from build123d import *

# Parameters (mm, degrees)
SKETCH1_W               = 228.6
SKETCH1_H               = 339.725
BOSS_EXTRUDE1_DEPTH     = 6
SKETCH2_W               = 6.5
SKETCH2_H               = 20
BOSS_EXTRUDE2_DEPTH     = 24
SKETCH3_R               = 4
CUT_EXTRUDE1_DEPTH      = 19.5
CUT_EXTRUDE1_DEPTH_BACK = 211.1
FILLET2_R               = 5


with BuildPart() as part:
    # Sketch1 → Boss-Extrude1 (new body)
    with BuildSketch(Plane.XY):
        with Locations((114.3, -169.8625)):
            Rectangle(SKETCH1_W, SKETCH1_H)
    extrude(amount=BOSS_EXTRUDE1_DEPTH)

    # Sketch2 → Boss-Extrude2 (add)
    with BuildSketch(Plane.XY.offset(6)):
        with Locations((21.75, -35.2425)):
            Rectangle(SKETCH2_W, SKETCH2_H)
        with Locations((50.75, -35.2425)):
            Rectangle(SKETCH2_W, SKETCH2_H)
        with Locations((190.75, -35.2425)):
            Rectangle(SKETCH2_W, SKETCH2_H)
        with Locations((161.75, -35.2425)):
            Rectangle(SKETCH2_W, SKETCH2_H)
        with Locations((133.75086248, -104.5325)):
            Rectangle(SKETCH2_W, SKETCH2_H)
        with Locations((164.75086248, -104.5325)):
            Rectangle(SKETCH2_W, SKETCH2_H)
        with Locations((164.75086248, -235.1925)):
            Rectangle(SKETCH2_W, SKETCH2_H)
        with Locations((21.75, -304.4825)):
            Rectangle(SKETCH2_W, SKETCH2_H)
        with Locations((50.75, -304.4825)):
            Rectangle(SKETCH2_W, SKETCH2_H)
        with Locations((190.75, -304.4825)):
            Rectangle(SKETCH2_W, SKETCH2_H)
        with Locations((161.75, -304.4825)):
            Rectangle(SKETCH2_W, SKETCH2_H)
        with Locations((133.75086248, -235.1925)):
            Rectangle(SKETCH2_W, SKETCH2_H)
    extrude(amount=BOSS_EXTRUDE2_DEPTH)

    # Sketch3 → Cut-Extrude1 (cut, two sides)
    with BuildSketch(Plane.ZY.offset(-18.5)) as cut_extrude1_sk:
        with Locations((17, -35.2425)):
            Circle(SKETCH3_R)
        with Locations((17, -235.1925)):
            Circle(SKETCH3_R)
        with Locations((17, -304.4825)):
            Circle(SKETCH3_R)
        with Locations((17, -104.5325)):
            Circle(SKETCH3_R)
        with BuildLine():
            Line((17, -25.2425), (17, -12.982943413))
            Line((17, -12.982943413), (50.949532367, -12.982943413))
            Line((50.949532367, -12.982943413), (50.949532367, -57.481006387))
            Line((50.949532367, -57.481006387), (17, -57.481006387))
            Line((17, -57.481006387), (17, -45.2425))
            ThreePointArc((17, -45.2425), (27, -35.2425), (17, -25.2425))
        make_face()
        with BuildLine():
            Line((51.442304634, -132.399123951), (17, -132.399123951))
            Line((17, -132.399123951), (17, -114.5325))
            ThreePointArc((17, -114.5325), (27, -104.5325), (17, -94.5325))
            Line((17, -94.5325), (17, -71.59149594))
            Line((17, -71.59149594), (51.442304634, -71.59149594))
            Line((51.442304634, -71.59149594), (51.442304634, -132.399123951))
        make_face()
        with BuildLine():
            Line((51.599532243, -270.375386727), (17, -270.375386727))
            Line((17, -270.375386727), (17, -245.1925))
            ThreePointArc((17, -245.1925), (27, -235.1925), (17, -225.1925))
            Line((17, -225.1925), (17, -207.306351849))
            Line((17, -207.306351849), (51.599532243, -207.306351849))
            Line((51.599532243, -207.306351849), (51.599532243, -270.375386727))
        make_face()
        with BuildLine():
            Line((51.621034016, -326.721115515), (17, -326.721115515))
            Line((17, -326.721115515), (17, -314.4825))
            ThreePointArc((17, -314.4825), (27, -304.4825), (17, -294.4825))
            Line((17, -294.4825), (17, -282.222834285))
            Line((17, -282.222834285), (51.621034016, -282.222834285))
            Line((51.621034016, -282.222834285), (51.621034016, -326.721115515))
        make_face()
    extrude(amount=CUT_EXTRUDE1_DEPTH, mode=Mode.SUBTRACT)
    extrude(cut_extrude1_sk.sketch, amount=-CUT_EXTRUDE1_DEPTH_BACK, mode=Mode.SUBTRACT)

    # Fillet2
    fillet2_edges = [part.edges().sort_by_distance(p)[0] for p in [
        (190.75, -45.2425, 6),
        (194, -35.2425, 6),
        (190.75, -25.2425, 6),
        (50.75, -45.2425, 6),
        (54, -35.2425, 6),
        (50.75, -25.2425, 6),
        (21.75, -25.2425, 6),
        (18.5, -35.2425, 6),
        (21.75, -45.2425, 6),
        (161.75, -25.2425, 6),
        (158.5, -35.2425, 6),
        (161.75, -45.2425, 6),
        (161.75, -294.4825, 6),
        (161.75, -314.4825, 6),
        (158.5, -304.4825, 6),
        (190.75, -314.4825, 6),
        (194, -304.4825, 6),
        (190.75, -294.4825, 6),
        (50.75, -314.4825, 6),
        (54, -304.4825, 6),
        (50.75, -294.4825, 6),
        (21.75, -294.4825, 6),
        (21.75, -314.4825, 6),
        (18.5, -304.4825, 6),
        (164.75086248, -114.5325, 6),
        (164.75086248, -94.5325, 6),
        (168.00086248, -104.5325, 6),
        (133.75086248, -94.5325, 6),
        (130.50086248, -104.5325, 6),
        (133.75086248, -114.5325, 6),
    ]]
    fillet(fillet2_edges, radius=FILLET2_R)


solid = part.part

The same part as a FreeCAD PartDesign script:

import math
import FreeCAD as App
import Part
import Sketcher

V = App.Vector
Q = App.Units.Quantity


def edges_at(feature, points):
    """Names of the edges that pass closest to the given points."""
    edges = feature.Shape.Edges
    near = lambda p: min(range(len(edges)), key=lambda i: edges[i].distToShape(Part.Vertex(*p))[0])
    return sorted({f"Edge{near(p) + 1}" for p in points})


def add_polygon(sketch, points):
    """Adds a closed chain of lines whose ends are joined by coincident constraints."""
    first, n = sketch.GeometryCount, len(points)
    for a, b in zip(points, points[1:] + points[:1]):
        sketch.addGeometry(Part.LineSegment(App.Vector(*a, 0), App.Vector(*b, 0)), False)
    for i in range(n):
        sketch.addConstraint(Sketcher.Constraint("Coincident", first + i, 2, first + (i + 1) % n, 1))

doc = App.newDocument("Part")
body = doc.addObject("PartDesign::Body", "Body")

# Sketch on XY plane
sketch1 = doc.addObject("Sketcher::SketchObject", "Sketch")
body.addObject(sketch1)
sketch1.AttachmentSupport = (doc.XY_Plane, [""])
sketch1.MapMode = "FlatFace"
add_polygon(sketch1, [(0, 0), (0, -340), (229, -340), (229, 0)])  # lines 0-3
sketch1.addConstraint([
    Sketcher.Constraint("Vertical", 0),
    Sketcher.Constraint("Horizontal", 1),
    Sketcher.Constraint("Vertical", 2),
    Sketcher.Constraint("Horizontal", 3),
    Sketcher.Constraint("Coincident", 3, 2, -1, 1),
    Sketcher.Constraint("DistanceX", 1, 1, 1, 2, Q("228.6 mm")),
    Sketcher.Constraint("DistanceY", 0, 2, 0, 1, Q("339.725 mm")),
])
pad1 = doc.addObject("PartDesign::Pad", "Pad")
body.addObject(pad1)
pad1.Profile = sketch1
pad1.Length = 6

# Sketch on XY plane
sketch2 = doc.addObject("Sketcher::SketchObject", "Sketch001")
body.addObject(sketch2)
sketch2.AttachmentSupport = (doc.XY_Plane, [""])
sketch2.MapMode = "FlatFace"
sketch2.AttachmentOffset = App.Placement(V(0, 0, 6), App.Rotation())
add_polygon(sketch2, [(18, -25), (18, -45), (25, -45), (25, -25)])  # lines 0-3
add_polygon(sketch2, [(48, -25), (48, -45), (54, -45), (54, -25)])  # lines 4-7
add_polygon(sketch2, [(188, -25), (188, -45), (194, -45), (194, -25)])  # lines 8-11
add_polygon(sketch2, [(158, -25), (158, -45), (165, -45), (165, -25)])  # lines 12-15
add_polygon(sketch2, [(131, -95), (131, -115), (137, -115), (137, -95)])  # lines 16-19
add_polygon(sketch2, [(162, -95), (162, -115), (168, -115), (168, -95)])  # lines 20-23
add_polygon(sketch2, [(162, -225), (162, -245), (168, -245), (168, -225)])  # lines 24-27
add_polygon(sketch2, [(18, -294), (18, -314), (25, -314), (25, -294)])  # lines 28-31
add_polygon(sketch2, [(48, -294), (48, -314), (54, -314), (54, -294)])  # lines 32-35
add_polygon(sketch2, [(188, -294), (188, -314), (194, -314), (194, -294)])  # lines 36-39
add_polygon(sketch2, [(158, -294), (158, -314), (165, -314), (165, -294)])  # lines 40-43
add_polygon(sketch2, [(131, -225), (131, -245), (137, -245), (137, -225)])  # lines 44-47
sketch2.addConstraint([
    Sketcher.Constraint("Vertical", 0),
    Sketcher.Constraint("Horizontal", 1),
    Sketcher.Constraint("Vertical", 2),
    Sketcher.Constraint("Horizontal", 3),
    Sketcher.Constraint("Vertical", 4),
    Sketcher.Constraint("Horizontal", 5),
    Sketcher.Constraint("Vertical", 6),
    Sketcher.Constraint("Horizontal", 7),
    Sketcher.Constraint("Vertical", 8),
    Sketcher.Constraint("Horizontal", 9),
    Sketcher.Constraint("Vertical", 10),
    Sketcher.Constraint("Horizontal", 11),
    Sketcher.Constraint("Vertical", 12),
    Sketcher.Constraint("Horizontal", 13),
    Sketcher.Constraint("Vertical", 14),
    Sketcher.Constraint("Horizontal", 15),
    Sketcher.Constraint("Vertical", 16),
    Sketcher.Constraint("Horizontal", 17),
    Sketcher.Constraint("Vertical", 18),
    Sketcher.Constraint("Horizontal", 19),
    Sketcher.Constraint("Vertical", 20),
    Sketcher.Constraint("Horizontal", 21),
    Sketcher.Constraint("Vertical", 22),
    Sketcher.Constraint("Horizontal", 23),
    Sketcher.Constraint("Vertical", 24),
    Sketcher.Constraint("Horizontal", 25),
    Sketcher.Constraint("Vertical", 26),
    Sketcher.Constraint("Horizontal", 27),
    Sketcher.Constraint("Vertical", 28),
    Sketcher.Constraint("Horizontal", 29),
    Sketcher.Constraint("Vertical", 30),
    Sketcher.Constraint("Horizontal", 31),
    Sketcher.Constraint("Vertical", 32),
    Sketcher.Constraint("Horizontal", 33),
    Sketcher.Constraint("Vertical", 34),
    Sketcher.Constraint("Horizontal", 35),
    Sketcher.Constraint("Vertical", 36),
    Sketcher.Constraint("Horizontal", 37),
    Sketcher.Constraint("Vertical", 38),
    Sketcher.Constraint("Horizontal", 39),
    Sketcher.Constraint("Vertical", 40),
    Sketcher.Constraint("Horizontal", 41),
    Sketcher.Constraint("Vertical", 42),
    Sketcher.Constraint("Horizontal", 43),
    Sketcher.Constraint("Vertical", 44),
    Sketcher.Constraint("Horizontal", 45),
    Sketcher.Constraint("Vertical", 46),
    Sketcher.Constraint("Horizontal", 47),
    Sketcher.Constraint("Horizontal", 1, 2, 4, 2),
    Sketcher.Constraint("Horizontal", 3, 2, 6, 2),
    Sketcher.Constraint("Horizontal", 5, 2, 8, 2),
    Sketcher.Constraint("Horizontal", 7, 2, 10, 2),
    Sketcher.Constraint("Horizontal", 9, 2, 12, 2),
    Sketcher.Constraint("Horizontal", 11, 2, 14, 2),
    Sketcher.Constraint("Horizontal", 17, 2, 20, 2),
    Sketcher.Constraint("Horizontal", 19, 2, 22, 2),
    Sketcher.Constraint("Horizontal", 29, 2, 32, 2),
    Sketcher.Constraint("Horizontal", 31, 2, 34, 2),
    Sketcher.Constraint("Horizontal", 33, 2, 36, 2),
    Sketcher.Constraint("Horizontal", 35, 2, 38, 2),
    Sketcher.Constraint("Horizontal", 37, 2, 40, 2),
    Sketcher.Constraint("Horizontal", 39, 2, 42, 2),
    Sketcher.Constraint("Horizontal", 25, 2, 44, 2),
    Sketcher.Constraint("Horizontal", 27, 2, 46, 2),
    Sketcher.Constraint("Vertical", 23, 2, 24, 2),
    Sketcher.Constraint("Vertical", 22, 2, 25, 2),
    Sketcher.Constraint("Vertical", 3, 2, 28, 2),
    Sketcher.Constraint("Vertical", 2, 2, 29, 2),
    Sketcher.Constraint("Vertical", 7, 2, 32, 2),
    Sketcher.Constraint("Vertical", 6, 2, 33, 2),
    Sketcher.Constraint("Vertical", 11, 2, 36, 2),
    Sketcher.Constraint("Vertical", 10, 2, 37, 2),
    Sketcher.Constraint("Vertical", 15, 2, 40, 2),
    Sketcher.Constraint("Vertical", 14, 2, 41, 2),
    Sketcher.Constraint("Vertical", 19, 2, 44, 2),
    Sketcher.Constraint("Vertical", 18, 2, 45, 2),
    Sketcher.Constraint("Equal", 3, 5),
    Sketcher.Constraint("Equal", 7, 9),
    Sketcher.Constraint("Equal", 11, 13),
    Sketcher.Constraint("Equal", 15, 17),
    Sketcher.Constraint("Equal", 19, 21),
    Sketcher.Constraint("Equal", 14, 16),
    Sketcher.Constraint("Equal", 22, 24),
    Sketcher.Constraint("Equal", 26, 28),
    Sketcher.Constraint("DistanceY", 0, 2, 0, 1, Q("20 mm")),
    Sketcher.Constraint("DistanceX", 1, 1, 1, 2, Q("6.5 mm")),
    Sketcher.Constraint("DistanceX", -1, 1, 1, 2, Q("25 mm")),
    Sketcher.Constraint("DistanceX", -1, 1, 5, 2, Q("54 mm")),
    Sketcher.Constraint("DistanceX", -1, 1, 9, 2, Q("194 mm")),
    Sketcher.Constraint("DistanceX", -1, 1, 13, 2, Q("165 mm")),
    Sketcher.Constraint("DistanceX", 16, 2, 20, 2, Q("31 mm")),
    Sketcher.Constraint("DistanceY", 16, 2, 12, 2, Q("69.29 mm")),
    Sketcher.Constraint("DistanceY", 24, 2, 20, 2, Q("130.66 mm")),
    Sketcher.Constraint("DistanceY", 28, 2, 24, 2, Q("69.29 mm")),
    Sketcher.Constraint("DistanceY", 0, 2, -1, 1, Q("45.2425 mm")),
    Sketcher.Constraint("DistanceX", -1, 1, 16, 2, Q("130.500862 mm")),
])
pad2 = doc.addObject("PartDesign::Pad", "Pad001")
body.addObject(pad2)
pad2.Profile = sketch2
pad2.Length = 24

# Sketch on YZ plane
sketch3 = doc.addObject("Sketcher::SketchObject", "Sketch002")
body.addObject(sketch3)
sketch3.AttachmentSupport = (doc.YZ_Plane, [""])
sketch3.MapMode = "FlatFace"
sketch3.AttachmentOffset = App.Placement(V(0, 0, 18.5), App.Rotation())
sketch3.addGeometry([
    Part.Circle(V(-35.2, 17, 0), V(0, 0, 1), 4),  # 0
    Part.Circle(V(-235.2, 17, 0), V(0, 0, 1), 4),  # 1
    Part.Circle(V(-304.5, 17, 0), V(0, 0, 1), 4),  # 2
    Part.Circle(V(-104.5, 17, 0), V(0, 0, 1), 4),  # 3
    Part.LineSegment(V(-13, 17, 0), V(-25.2, 17, 0)),  # 4
    Part.ArcOfCircle(Part.Circle(V(-35.2, 17, 0), V(0, 0, 1), 10), math.radians(0), math.radians(180)),  # 5
    Part.LineSegment(V(-45.2, 17, 0), V(-57.5, 17, 0)),  # 6
    Part.LineSegment(V(-57.5, 17, 0), V(-57.5, 50.9, 0)),  # 7
    Part.LineSegment(V(-57.5, 50.9, 0), V(-13, 50.9, 0)),  # 8
    Part.LineSegment(V(-13, 50.9, 0), V(-13, 17, 0)),  # 9
    Part.LineSegment(V(-132.4, 17, 0), V(-132.4, 51.4, 0)),  # 10
    Part.LineSegment(V(-132.4, 51.4, 0), V(-71.6, 51.4, 0)),  # 11
    Part.LineSegment(V(-71.6, 51.4, 0), V(-71.6, 17, 0)),  # 12
    Part.LineSegment(V(-71.6, 17, 0), V(-94.5, 17, 0)),  # 13
    Part.ArcOfCircle(Part.Circle(V(-104.5, 17, 0), V(0, 0, 1), 10), math.radians(0), math.radians(180)),  # 14
    Part.LineSegment(V(-114.5, 17, 0), V(-132.4, 17, 0)),  # 15
    Part.LineSegment(V(-270.4, 17, 0), V(-270.4, 51.6, 0)),  # 16
    Part.LineSegment(V(-270.4, 51.6, 0), V(-207.3, 51.6, 0)),  # 17
    Part.LineSegment(V(-207.3, 51.6, 0), V(-207.3, 17, 0)),  # 18
    Part.LineSegment(V(-207.3, 17, 0), V(-225.2, 17, 0)),  # 19
    Part.ArcOfCircle(Part.Circle(V(-235.2, 17, 0), V(0, 0, 1), 10), math.radians(0), math.radians(180)),  # 20
    Part.LineSegment(V(-245.2, 17, 0), V(-270.4, 17, 0)),  # 21
    Part.LineSegment(V(-326.7, 17, 0), V(-326.7, 51.6, 0)),  # 22
    Part.LineSegment(V(-326.7, 51.6, 0), V(-282.2, 51.6, 0)),  # 23
    Part.LineSegment(V(-282.2, 51.6, 0), V(-282.2, 17, 0)),  # 24
    Part.LineSegment(V(-282.2, 17, 0), V(-294.5, 17, 0)),  # 25
    Part.ArcOfCircle(Part.Circle(V(-304.5, 17, 0), V(0, 0, 1), 10), math.radians(0), math.radians(180)),  # 26
    Part.LineSegment(V(-314.5, 17, 0), V(-326.7, 17, 0)),  # 27
], False)
sketch3.addConstraint([
    Sketcher.Constraint("Coincident", 4, 2, 5, 1),
    Sketcher.Constraint("Coincident", 5, 2, 6, 1),
    Sketcher.Constraint("Coincident", 6, 2, 7, 1),
    Sketcher.Constraint("Coincident", 7, 2, 8, 1),
    Sketcher.Constraint("Coincident", 8, 2, 9, 1),
    Sketcher.Constraint("Coincident", 9, 2, 4, 1),
    Sketcher.Constraint("Coincident", 10, 2, 11, 1),
    Sketcher.Constraint("Coincident", 11, 2, 12, 1),
    Sketcher.Constraint("Coincident", 12, 2, 13, 1),
    Sketcher.Constraint("Coincident", 13, 2, 14, 1),
    Sketcher.Constraint("Coincident", 14, 2, 15, 1),
    Sketcher.Constraint("Coincident", 15, 2, 10, 1),
    Sketcher.Constraint("Coincident", 16, 2, 17, 1),
    Sketcher.Constraint("Coincident", 17, 2, 18, 1),
    Sketcher.Constraint("Coincident", 18, 2, 19, 1),
    Sketcher.Constraint("Coincident", 19, 2, 20, 1),
    Sketcher.Constraint("Coincident", 20, 2, 21, 1),
    Sketcher.Constraint("Coincident", 21, 2, 16, 1),
    Sketcher.Constraint("Coincident", 22, 2, 23, 1),
    Sketcher.Constraint("Coincident", 23, 2, 24, 1),
    Sketcher.Constraint("Coincident", 24, 2, 25, 1),
    Sketcher.Constraint("Coincident", 25, 2, 26, 1),
    Sketcher.Constraint("Coincident", 26, 2, 27, 1),
    Sketcher.Constraint("Coincident", 27, 2, 22, 1),
    Sketcher.Constraint("Horizontal", 4),
    Sketcher.Constraint("Horizontal", 6),
    Sketcher.Constraint("Vertical", 7),
    Sketcher.Constraint("Horizontal", 8),
    Sketcher.Constraint("Vertical", 9),
    Sketcher.Constraint("Vertical", 10),
    Sketcher.Constraint("Horizontal", 11),
    Sketcher.Constraint("Vertical", 12),
    Sketcher.Constraint("Horizontal", 13),
    Sketcher.Constraint("Horizontal", 15),
    Sketcher.Constraint("Vertical", 16),
    Sketcher.Constraint("Horizontal", 17),
    Sketcher.Constraint("Vertical", 18),
    Sketcher.Constraint("Horizontal", 19),
    Sketcher.Constraint("Horizontal", 21),
    Sketcher.Constraint("Vertical", 22),
    Sketcher.Constraint("Horizontal", 23),
    Sketcher.Constraint("Vertical", 24),
    Sketcher.Constraint("Horizontal", 25),
    Sketcher.Constraint("Horizontal", 27),
    Sketcher.Constraint("Coincident", 5, 3, 0, 3),
    Sketcher.Constraint("Coincident", 14, 3, 3, 3),
    Sketcher.Constraint("Coincident", 20, 3, 1, 3),
    Sketcher.Constraint("Coincident", 26, 3, 2, 3),
    Sketcher.Constraint("Equal", 0, 1),
    Sketcher.Constraint("Equal", 1, 2),
    Sketcher.Constraint("Equal", 2, 3),
    Sketcher.Constraint("Equal", 5, 14),
    Sketcher.Constraint("Equal", 14, 20),
    Sketcher.Constraint("Equal", 20, 26),
    Sketcher.Constraint("Horizontal", 0, 3, 1, 3),
    Sketcher.Constraint("Horizontal", 1, 3, 2, 3),
    Sketcher.Constraint("Horizontal", 2, 3, 3, 3),
    Sketcher.Constraint("Horizontal", 26, 3, 4, 2),
    Sketcher.Constraint("Horizontal", 4, 2, 5, 2),
    Sketcher.Constraint("Horizontal", 9, 2, 12, 2),
    Sketcher.Constraint("Horizontal", 13, 2, 14, 2),
    Sketcher.Constraint("Horizontal", 15, 2, 18, 2),
    Sketcher.Constraint("Horizontal", 19, 2, 20, 2),
    Sketcher.Constraint("Horizontal", 21, 2, 24, 2),
    Sketcher.Constraint("Horizontal", 25, 2, 26, 2),
    Sketcher.Constraint("Diameter", 0, Q("8 mm")),
    Sketcher.Constraint("Radius", 5, Q("10 mm")),
    Sketcher.Constraint("DistanceY", -1, 1, 0, 3, Q("17 mm")),
    Sketcher.Constraint("DistanceX", 1, 3, 0, 3, Q("199.95 mm")),
    Sketcher.Constraint("DistanceX", 2, 3, 1, 3, Q("69.29 mm")),
    Sketcher.Constraint("DistanceX", 3, 3, 0, 3, Q("69.29 mm")),
    Sketcher.Constraint("DistanceX", 11, 1, 11, 2, Q("60.807628 mm")),
    Sketcher.Constraint("DistanceX", 19, 2, 19, 1, Q("17.886148 mm")),
    Sketcher.Constraint("DistanceX", 23, 1, 23, 2, Q("44.498281 mm")),
    Sketcher.Constraint("DistanceX", 0, 3, -1, 1, Q("35.2425 mm")),
    Sketcher.Constraint("DistanceY", 16, 2, 22, 2, Q("0.021502 mm")),
    Sketcher.Constraint("DistanceX", 4, 2, 4, 1, Q("12.259557 mm")),
    Sketcher.Constraint("DistanceX", 6, 2, 6, 1, Q("12.238506 mm")),
    Sketcher.Constraint("DistanceX", 13, 2, 13, 1, Q("22.941004 mm")),
    Sketcher.Constraint("DistanceX", 17, 1, 17, 2, Q("63.069035 mm")),
    Sketcher.Constraint("DistanceX", 25, 2, 25, 1, Q("12.259666 mm")),
    Sketcher.Constraint("DistanceY", 7, 1, 7, 2, Q("33.949532 mm")),
    Sketcher.Constraint("DistanceY", 10, 1, 10, 2, Q("34.442305 mm")),
    Sketcher.Constraint("DistanceY", 16, 1, 16, 2, Q("34.599532 mm")),
])
pocket1 = doc.addObject("PartDesign::Pocket", "Pocket")
body.addObject(pocket1)
pocket1.Profile = sketch3
pocket1.Type = "ThroughAll"
pocket1.Midplane = True
doc.recompute()

fillet = doc.addObject("PartDesign::Fillet", "Fillet")
body.addObject(fillet)
fillet.Base = (pocket1, edges_at(pocket1, [
    (190.75, -45.242, 6),
    (194, -35.242, 6),
    (190.75, -25.242, 6),
    (50.75, -45.242, 6),
    (54, -35.242, 6),
    (50.75, -25.242, 6),
    (21.75, -25.242, 6),
    (18.5, -35.242, 6),
    (21.75, -45.242, 6),
    (161.75, -25.242, 6),
    (158.5, -35.242, 6),
    (161.75, -45.242, 6),
    (161.75, -294.483, 6),
    (161.75, -314.483, 6),
    (158.5, -304.483, 6),
    (190.75, -314.483, 6),
    (194, -304.483, 6),
    (190.75, -294.483, 6),
    (50.75, -314.483, 6),
    (54, -304.483, 6),
    (50.75, -294.483, 6),
    (21.75, -294.483, 6),
    (21.75, -314.483, 6),
    (18.5, -304.483, 6),
    (164.751, -114.532, 6),
    (164.751, -94.532, 6),
    (168.001, -104.532, 6),
    (133.751, -94.532, 6),
    (130.501, -104.532, 6),
    (133.751, -114.532, 6),
]))
fillet.Radius = 5

doc.recompute()
